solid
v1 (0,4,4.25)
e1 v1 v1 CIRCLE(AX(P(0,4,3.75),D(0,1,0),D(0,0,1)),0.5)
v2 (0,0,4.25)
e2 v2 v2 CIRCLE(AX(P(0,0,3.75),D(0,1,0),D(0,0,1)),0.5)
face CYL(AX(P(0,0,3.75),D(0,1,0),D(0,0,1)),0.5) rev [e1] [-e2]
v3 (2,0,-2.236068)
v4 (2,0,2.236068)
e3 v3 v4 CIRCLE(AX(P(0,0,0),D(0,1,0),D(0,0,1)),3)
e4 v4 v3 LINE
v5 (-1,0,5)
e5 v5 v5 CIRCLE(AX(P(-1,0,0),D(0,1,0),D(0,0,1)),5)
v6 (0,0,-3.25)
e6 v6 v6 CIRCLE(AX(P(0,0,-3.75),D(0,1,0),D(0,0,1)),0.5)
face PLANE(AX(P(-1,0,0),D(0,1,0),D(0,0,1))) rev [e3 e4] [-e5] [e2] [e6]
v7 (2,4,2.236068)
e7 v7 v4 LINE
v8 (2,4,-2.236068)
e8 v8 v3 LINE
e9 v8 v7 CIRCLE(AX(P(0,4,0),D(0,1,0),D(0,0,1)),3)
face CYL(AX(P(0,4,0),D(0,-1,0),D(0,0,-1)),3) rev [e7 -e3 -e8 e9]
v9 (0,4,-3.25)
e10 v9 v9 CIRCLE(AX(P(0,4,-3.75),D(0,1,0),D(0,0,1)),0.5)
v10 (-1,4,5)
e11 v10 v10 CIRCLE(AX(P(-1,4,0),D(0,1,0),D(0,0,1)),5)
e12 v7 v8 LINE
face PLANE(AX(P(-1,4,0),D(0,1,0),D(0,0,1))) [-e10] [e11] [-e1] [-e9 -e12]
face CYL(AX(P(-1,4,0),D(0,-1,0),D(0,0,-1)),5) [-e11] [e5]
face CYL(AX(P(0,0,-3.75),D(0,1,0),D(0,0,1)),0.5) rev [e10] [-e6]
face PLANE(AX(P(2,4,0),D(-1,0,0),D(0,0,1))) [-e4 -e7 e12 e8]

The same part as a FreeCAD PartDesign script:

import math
import FreeCAD as App
import Part
import Sketcher
from FreeCAD import Vector

doc = App.newDocument("Part")
body = doc.addObject("PartDesign::Body", "Body")

# Sketch on XZ plane
sketch1 = body.newObject("Sketcher::SketchObject", "Sketch")
sketch1.AttachmentSupport = (doc.getObject("XZ_Plane"), [""])
sketch1.MapMode = "FlatFace"
sketch1.addGeometry([
    Part.Circle(Vector(-1, 0, 0), Vector(0, 0, 1), 5),
    Part.Circle(Vector(0, 0, 0), Vector(0, 0, 1), 3),
], False)
sketch1.addConstraint([
    Sketcher.Constraint("Coincident", 1, 3, -1, 1),
    Sketcher.Constraint("PointOnObject", 0, 3, -1),
    Sketcher.Constraint("Diameter", 0, 10.0),
    Sketcher.Constraint("Diameter", 1, 6.0),
    Sketcher.Constraint("DistanceX", 0, 3, -1, 1, 1.0),
])
pad1 = body.newObject("PartDesign::Pad", "Pad")
pad1.Profile = sketch1
pad1.Length = 4
pad1.Reversed = True

# Sketch on XZ plane
sketch2 = body.newObject("Sketcher::SketchObject", "Sketch001")
sketch2.AttachmentSupport = (doc.getObject("XZ_Plane"), [""])
sketch2.MapMode = "FlatFace"
sketch2.AttachmentOffset = App.Placement(Vector(0, 0, -4), App.Rotation())
sketch2.addGeometry([
    Part.Circle(Vector(0, -3.8, 0), Vector(0, 0, 1), 0.5),
    Part.Circle(Vector(0, 3.8, 0), Vector(0, 0, 1), 0.5),
], False)
sketch2.addConstraint([
    Sketcher.Constraint("Equal", 0, 1),
    Sketcher.Constraint("Symmetric", 0, 3, 1, 3, -1, 1),
    Sketcher.Constraint("PointOnObject", 0, 3, -2),
    Sketcher.Constraint("Diameter", 0, 1.0),
    Sketcher.Constraint("DistanceY", 0, 3, 1, 3, 7.5),
])
pocket1 = body.newObject("PartDesign::Pocket", "Pocket")
pocket1.Profile = sketch2
pocket1.Type = "ThroughAll"
pocket1.Reversed = True

# Sketch on XZ plane
sketch3 = body.newObject("Sketcher::SketchObject", "Sketch002")
sketch3.AttachmentSupport = (doc.getObject("XZ_Plane"), [""])
sketch3.MapMode = "FlatFace"
sketch3.addGeometry([
    Part.ArcOfCircle(Part.Circle(Vector(0, 0, 0), Vector(0, 0, 1), 3), math.radians(0), math.radians(48)),
    Part.LineSegment(Vector(2, 2.2, 0), Vector(2, -2.2, 0)),
    Part.ArcOfCircle(Part.Circle(Vector(0, 0, 0), Vector(0, 0, 1), 3), math.radians(-48), math.radians(0)),
], False)
sketch3.addConstraint([
    Sketcher.Constraint("Coincident", 0, 2, 1, 1),
    Sketcher.Constraint("Coincident", 1, 2, 2, 1),
    Sketcher.Constraint("Tangent", 2, 2, 0, 1),
    Sketcher.Constraint("Vertical", 1),
    Sketcher.Constraint("Coincident", 0, 3, -1, 1),
    Sketcher.Constraint("Equal", 0, 2),
    Sketcher.Constraint("PointOnObject", 2, 2, -1),
    Sketcher.Constraint("Radius", 0, 3.0),
    Sketcher.Constraint("DistanceX", -1, 1, 0, 2, 2.0),
])
pad2 = body.newObject("PartDesign::Pad", "Pad001")
pad2.Profile = sketch3
pad2.Length = 4
pad2.Reversed = True

doc.recompute()
